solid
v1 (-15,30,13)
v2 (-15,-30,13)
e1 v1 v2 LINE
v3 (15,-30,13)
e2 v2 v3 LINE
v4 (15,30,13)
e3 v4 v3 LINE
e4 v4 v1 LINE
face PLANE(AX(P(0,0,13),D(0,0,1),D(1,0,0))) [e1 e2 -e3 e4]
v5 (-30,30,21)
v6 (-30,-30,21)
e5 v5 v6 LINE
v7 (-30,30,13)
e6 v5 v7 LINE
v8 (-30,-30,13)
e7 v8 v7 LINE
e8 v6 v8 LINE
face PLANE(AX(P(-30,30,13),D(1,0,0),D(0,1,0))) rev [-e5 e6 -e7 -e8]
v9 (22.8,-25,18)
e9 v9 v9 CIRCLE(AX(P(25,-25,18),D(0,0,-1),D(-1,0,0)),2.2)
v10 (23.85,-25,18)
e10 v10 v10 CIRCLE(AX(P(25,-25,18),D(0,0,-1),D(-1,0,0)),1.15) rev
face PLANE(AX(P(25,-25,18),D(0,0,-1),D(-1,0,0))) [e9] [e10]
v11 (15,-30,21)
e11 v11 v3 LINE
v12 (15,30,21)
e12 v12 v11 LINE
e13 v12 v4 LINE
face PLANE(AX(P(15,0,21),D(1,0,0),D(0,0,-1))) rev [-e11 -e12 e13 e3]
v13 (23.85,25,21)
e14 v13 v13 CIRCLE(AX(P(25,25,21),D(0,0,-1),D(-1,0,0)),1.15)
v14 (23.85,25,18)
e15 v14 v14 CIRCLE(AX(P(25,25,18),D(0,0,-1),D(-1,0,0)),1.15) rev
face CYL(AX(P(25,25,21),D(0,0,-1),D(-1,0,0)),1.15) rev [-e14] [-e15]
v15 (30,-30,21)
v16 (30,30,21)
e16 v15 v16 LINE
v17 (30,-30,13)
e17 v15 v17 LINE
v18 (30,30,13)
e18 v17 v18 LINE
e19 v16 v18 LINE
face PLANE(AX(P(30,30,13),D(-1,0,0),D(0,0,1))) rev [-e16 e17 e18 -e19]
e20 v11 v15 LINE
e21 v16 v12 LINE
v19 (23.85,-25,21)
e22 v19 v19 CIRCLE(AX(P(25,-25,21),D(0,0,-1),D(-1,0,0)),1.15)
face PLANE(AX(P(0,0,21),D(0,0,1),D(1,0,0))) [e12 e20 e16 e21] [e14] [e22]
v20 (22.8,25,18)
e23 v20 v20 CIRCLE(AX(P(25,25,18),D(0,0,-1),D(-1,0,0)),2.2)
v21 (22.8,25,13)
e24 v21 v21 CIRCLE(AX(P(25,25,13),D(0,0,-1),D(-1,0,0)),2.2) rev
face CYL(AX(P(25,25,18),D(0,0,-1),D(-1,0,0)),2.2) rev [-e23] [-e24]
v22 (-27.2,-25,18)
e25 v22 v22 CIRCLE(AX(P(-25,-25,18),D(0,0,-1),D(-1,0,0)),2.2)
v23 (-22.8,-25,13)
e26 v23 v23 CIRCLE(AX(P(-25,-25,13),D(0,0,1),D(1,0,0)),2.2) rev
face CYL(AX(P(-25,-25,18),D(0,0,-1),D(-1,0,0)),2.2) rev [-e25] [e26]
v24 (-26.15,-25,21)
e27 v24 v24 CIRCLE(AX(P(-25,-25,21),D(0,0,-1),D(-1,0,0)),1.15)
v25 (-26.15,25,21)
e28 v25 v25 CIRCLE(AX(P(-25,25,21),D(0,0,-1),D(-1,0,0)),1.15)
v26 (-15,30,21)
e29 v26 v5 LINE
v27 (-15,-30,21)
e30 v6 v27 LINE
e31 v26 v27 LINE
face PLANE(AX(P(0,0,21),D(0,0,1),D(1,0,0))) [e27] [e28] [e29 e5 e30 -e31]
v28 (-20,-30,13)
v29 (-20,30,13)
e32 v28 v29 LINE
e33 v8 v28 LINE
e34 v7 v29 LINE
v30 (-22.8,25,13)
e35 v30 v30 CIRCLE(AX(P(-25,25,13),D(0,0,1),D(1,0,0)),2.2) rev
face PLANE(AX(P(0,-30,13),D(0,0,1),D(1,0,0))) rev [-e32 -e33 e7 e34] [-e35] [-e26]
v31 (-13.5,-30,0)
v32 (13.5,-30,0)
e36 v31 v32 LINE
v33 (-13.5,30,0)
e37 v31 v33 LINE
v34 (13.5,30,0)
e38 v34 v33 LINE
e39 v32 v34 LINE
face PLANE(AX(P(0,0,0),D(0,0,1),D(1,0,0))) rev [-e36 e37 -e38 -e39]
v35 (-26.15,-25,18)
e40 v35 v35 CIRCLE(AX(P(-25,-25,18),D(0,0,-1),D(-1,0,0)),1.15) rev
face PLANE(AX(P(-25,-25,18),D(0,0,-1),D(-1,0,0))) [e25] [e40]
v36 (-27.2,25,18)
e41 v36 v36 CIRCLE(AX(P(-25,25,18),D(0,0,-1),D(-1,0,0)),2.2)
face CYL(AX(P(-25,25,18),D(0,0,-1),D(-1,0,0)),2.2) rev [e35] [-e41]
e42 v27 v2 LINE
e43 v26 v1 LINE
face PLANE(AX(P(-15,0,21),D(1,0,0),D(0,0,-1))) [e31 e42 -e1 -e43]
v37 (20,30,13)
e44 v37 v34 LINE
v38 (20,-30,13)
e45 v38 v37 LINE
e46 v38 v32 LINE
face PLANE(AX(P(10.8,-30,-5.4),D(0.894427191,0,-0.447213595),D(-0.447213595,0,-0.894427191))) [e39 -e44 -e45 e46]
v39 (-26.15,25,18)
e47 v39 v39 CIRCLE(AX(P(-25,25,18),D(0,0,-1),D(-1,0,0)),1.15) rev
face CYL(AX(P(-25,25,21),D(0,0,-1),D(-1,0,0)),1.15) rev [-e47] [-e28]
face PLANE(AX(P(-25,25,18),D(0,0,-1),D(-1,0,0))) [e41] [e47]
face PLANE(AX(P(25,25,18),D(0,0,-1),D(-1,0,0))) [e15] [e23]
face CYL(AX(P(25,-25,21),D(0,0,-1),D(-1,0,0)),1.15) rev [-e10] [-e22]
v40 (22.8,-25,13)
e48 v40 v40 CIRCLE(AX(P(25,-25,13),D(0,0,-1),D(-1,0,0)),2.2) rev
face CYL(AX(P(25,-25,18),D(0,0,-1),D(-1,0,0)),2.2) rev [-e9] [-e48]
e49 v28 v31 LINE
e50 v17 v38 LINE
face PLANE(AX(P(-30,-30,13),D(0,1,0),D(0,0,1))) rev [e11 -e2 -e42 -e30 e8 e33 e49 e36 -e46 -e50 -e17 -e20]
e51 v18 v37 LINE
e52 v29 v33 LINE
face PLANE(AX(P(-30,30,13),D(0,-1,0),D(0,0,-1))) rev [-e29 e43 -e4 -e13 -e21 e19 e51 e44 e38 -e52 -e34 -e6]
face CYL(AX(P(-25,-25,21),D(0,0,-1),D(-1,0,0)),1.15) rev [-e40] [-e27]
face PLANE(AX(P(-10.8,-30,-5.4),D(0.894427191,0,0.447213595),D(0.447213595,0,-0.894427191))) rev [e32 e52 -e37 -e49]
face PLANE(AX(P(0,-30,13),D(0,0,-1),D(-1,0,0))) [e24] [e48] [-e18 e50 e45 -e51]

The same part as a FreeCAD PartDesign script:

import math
import FreeCAD as App
import Part
import Sketcher
from FreeCAD import Vector


def add_polygon(sketch, points):
    """Adds a closed chain of lines whose ends are joined by coincident constraints."""
    first, n = sketch.GeometryCount, len(points)
    for a, b in zip(points, points[1:] + points[:1]):
        sketch.addGeometry(Part.LineSegment(App.Vector(*a, 0), App.Vector(*b, 0)), False)
    for i in range(n):
        sketch.addConstraint(Sketcher.Constraint("Coincident", first + i, 2, first + (i + 1) % n, 1))

doc = App.newDocument("Part")
body = doc.addObject("PartDesign::Body", "Body")

# Sketch on XY plane
sketch1 = doc.addObject("Sketcher::SketchObject", "Sketch")
body.addObject(sketch1)
sketch1.AttachmentSupport = (doc.XY_Plane, [""])
sketch1.MapMode = "FlatFace"
add_polygon(sketch1, [(-30, 30), (-30, -30), (30, -30), (30, 30)])  # lines 0-3
sketch1.addConstraint(Sketcher.Constraint("Vertical", 0))
sketch1.addConstraint(Sketcher.Constraint("Horizontal", 1))
sketch1.addConstraint(Sketcher.Constraint("Vertical", 2))
sketch1.addConstraint(Sketcher.Constraint("Horizontal", 3))
sketch1.addConstraint(Sketcher.Constraint("Symmetric", 0, 2, 2, 2, -1, 1))
sketch1.addConstraint(Sketcher.Constraint("Equal", 3, 0))
sketch1.addConstraint(Sketcher.Constraint("DistanceX", 1, 1, 1, 2, 60.0))
pad1 = doc.addObject("PartDesign::Pad", "Pad")
body.addObject(pad1)
pad1.Profile = sketch1
pad1.Length = 13

# Sketch on XY plane
sketch2 = doc.addObject("Sketcher::SketchObject", "Sketch001")
body.addObject(sketch2)
sketch2.AttachmentSupport = (doc.XY_Plane, [""])
sketch2.MapMode = "FlatFace"
sketch2.AttachmentOffset = App.Placement(Vector(0, 0, 13), App.Rotation())
add_polygon(sketch2, [(-30, 30), (-30, -30), (-15, -30), (-15, 30)])  # lines 0-3
add_polygon(sketch2, [(15, 30), (15, -30), (30, -30), (30, 30)])  # lines 4-7
sketch2.addConstraint(Sketcher.Constraint("Vertical", 0))
sketch2.addConstraint(Sketcher.Constraint("Horizontal", 1))
sketch2.addConstraint(Sketcher.Constraint("Vertical", 2))
sketch2.addConstraint(Sketcher.Constraint("Horizontal", 3))
sketch2.addConstraint(Sketcher.Constraint("Vertical", 4))
sketch2.addConstraint(Sketcher.Constraint("Horizontal", 5))
sketch2.addConstraint(Sketcher.Constraint("Vertical", 6))
sketch2.addConstraint(Sketcher.Constraint("Horizontal", 7))
sketch2.addConstraint(Sketcher.Constraint("Symmetric", 2, 2, 4, 2, -1, 1))
sketch2.addConstraint(Sketcher.Constraint("Symmetric", 0, 2, 6, 2, -1, 1))
sketch2.addConstraint(Sketcher.Constraint("Horizontal", 1, 2, 4, 2))
sketch2.addConstraint(Sketcher.Constraint("DistanceX", 1, 1, 1, 2, 15.0))
sketch2.addConstraint(Sketcher.Constraint("DistanceY", 0, 2, 0, 1, 60.0))
sketch2.addConstraint(Sketcher.Constraint("DistanceX", 0, 2, -1, 1, 30.0))
pad2 = doc.addObject("PartDesign::Pad", "Pad001")
body.addObject(pad2)
pad2.Profile = sketch2
pad2.Length = 8

# Sketch on XY plane
sketch3 = doc.addObject("Sketcher::SketchObject", "Sketch002")
body.addObject(sketch3)
sketch3.AttachmentSupport = (doc.XY_Plane, [""])
sketch3.MapMode = "FlatFace"
sketch3.addGeometry(Part.Circle(Vector(-25, 25, 0), Vector(0, 0, 1), 1.15), False)
sketch3.addGeometry(Part.Circle(Vector(-25, -25, 0), Vector(0, 0, 1), 1.15), False)
sketch3.addGeometry(Part.Circle(Vector(25, -25, 0), Vector(0, 0, 1), 1.15), False)
sketch3.addGeometry(Part.ArcOfCircle(Part.Circle(Vector(25, 25, 0), Vector(0, 0, 1), 1.15), math.radians(-135), math.radians(45)), False)
sketch3.addGeometry(Part.ArcOfCircle(Part.Circle(Vector(25, 25, 0), Vector(0, 0, 1), 1.15), math.radians(-180), math.radians(-135)), False)
sketch3.addGeometry(Part.ArcOfCircle(Part.Circle(Vector(25, 25, 0), Vector(0, 0, 1), 1.15), math.radians(45), math.radians(180)), False)
sketch3.addConstraint(Sketcher.Constraint("Tangent", 3, 1, 4, 2))
sketch3.addConstraint(Sketcher.Constraint("Tangent", 4, 1, 5, 2))
sketch3.addConstraint(Sketcher.Constraint("Tangent", 5, 1, 3, 2))
sketch3.addConstraint(Sketcher.Constraint("Equal", 0, 1))
sketch3.addConstraint(Sketcher.Constraint("Equal", 1, 2))
sketch3.addConstraint(Sketcher.Constraint("Equal", 2, 3))
sketch3.addConstraint(Sketcher.Constraint("Symmetric", 0, 3, 2, 3, -1, 1))
sketch3.addConstraint(Sketcher.Constraint("Symmetric", 1, 3, 3, 3, -1, 1))
sketch3.addConstraint(Sketcher.Constraint("Symmetric", 1, 3, 2, 3, -2))
sketch3.addConstraint(Sketcher.Constraint("Horizontal", 5, 3, 4, 1))
sketch3.addConstraint(Sketcher.Constraint("Diameter", 0, 2.3))
sketch3.addConstraint(Sketcher.Constraint("DistanceX", 0, 3, -1, 1, 25.0))
sketch3.addConstraint(Sketcher.Constraint("DistanceY", -1, 1, 0, 3, 25.0))
sketch3.addConstraint(Sketcher.Constraint("DistanceX", -1, 1, 3, 1, 24.186827))
sketch3.addConstraint(Sketcher.Constraint("DistanceX", -1, 1, 5, 1, 25.813173))
pocket1 = doc.addObject("PartDesign::Pocket", "Pocket")
body.addObject(pocket1)
pocket1.Profile = sketch3
pocket1.Type = "ThroughAll"
pocket1.Reversed = True

# Sketch on XY plane
sketch4 = doc.addObject("Sketcher::SketchObject", "Sketch003")
body.addObject(sketch4)
sketch4.AttachmentSupport = (doc.XY_Plane, [""])
sketch4.MapMode = "FlatFace"
sketch4.addGeometry(Part.Circle(Vector(25, 25, 0), Vector(0, 0, 1), 2.2), False)
sketch4.addGeometry(Part.Circle(Vector(-25, 25, 0), Vector(0, 0, 1), 2.2), False)
sketch4.addGeometry(Part.Circle(Vector(-25, -25, 0), Vector(0, 0, 1), 2.2), False)
sketch4.addGeometry(Part.Circle(Vector(25, -25, 0), Vector(0, 0, 1), 2.2), False)
sketch4.addConstraint(Sketcher.Constraint("Equal", 0, 1))
sketch4.addConstraint(Sketcher.Constraint("Equal", 1, 2))
sketch4.addConstraint(Sketcher.Constraint("Equal", 2, 3))
sketch4.addConstraint(Sketcher.Constraint("Symmetric", 0, 3, 2, 3, -1, 1))
sketch4.addConstraint(Sketcher.Constraint("Symmetric", 1, 3, 3, 3, -1, 1))
sketch4.addConstraint(Sketcher.Constraint("Symmetric", 0, 3, 1, 3, -2))
sketch4.addConstraint(Sketcher.Constraint("Diameter", 0, 4.4))
sketch4.addConstraint(Sketcher.Constraint("DistanceX", -1, 1, 0, 3, 25.0))
sketch4.addConstraint(Sketcher.Constraint("DistanceY", -1, 1, 0, 3, 25.0))
pocket2 = doc.addObject("PartDesign::Pocket", "Pocket001")
body.addObject(pocket2)
pocket2.Profile = sketch4
pocket2.Length = 18
pocket2.Reversed = True

# Sketch on XZ plane
sketch5 = doc.addObject("Sketcher::SketchObject", "Sketch004")
body.addObject(sketch5)
sketch5.AttachmentSupport = (doc.XZ_Plane, [""])
sketch5.MapMode = "FlatFace"
sketch5.AttachmentOffset = App.Placement(Vector(0, 0, -30), App.Rotation())
add_polygon(sketch5, [(-30, 0), (-30, 13), (-20, 13), (-13.5, 0)])  # lines 0-3
add_polygon(sketch5, [(30, 0), (13.5, 0), (20, 13), (30, 13)])  # lines 4-7
sketch5.addConstraint(Sketcher.Constraint("Vertical", 0))
sketch5.addConstraint(Sketcher.Constraint("Horizontal", 1))
sketch5.addConstraint(Sketcher.Constraint("Horizontal", 3))
sketch5.addConstraint(Sketcher.Constraint("Horizontal", 4))
sketch5.addConstraint(Sketcher.Constraint("Horizontal", 6))
sketch5.addConstraint(Sketcher.Constraint("Vertical", 7))
sketch5.addConstraint(Sketcher.Constraint("Symmetric", 2, 2, 4, 2, -1, 1))
sketch5.addConstraint(Sketcher.Constraint("Symmetric", 1, 2, 5, 2, -2))
sketch5.addConstraint(Sketcher.Constraint("Symmetric", 3, 2, 7, 2, -2))
sketch5.addConstraint(Sketcher.Constraint("DistanceX", 1, 1, 1, 2, 10.0))
sketch5.addConstraint(Sketcher.Constraint("DistanceY", 0, 1, 0, 2, 13.0))
sketch5.addConstraint(Sketcher.Constraint("DistanceX", 3, 2, 3, 1, 16.5))
sketch5.addConstraint(Sketcher.Constraint("DistanceX", 0, 2, -1, 1, 30.0))
pocket3 = doc.addObject("PartDesign::Pocket", "Pocket002")
body.addObject(pocket3)
pocket3.Profile = sketch5
pocket3.Type = "ThroughAll"
pocket3.Reversed = True

doc.recompute()
